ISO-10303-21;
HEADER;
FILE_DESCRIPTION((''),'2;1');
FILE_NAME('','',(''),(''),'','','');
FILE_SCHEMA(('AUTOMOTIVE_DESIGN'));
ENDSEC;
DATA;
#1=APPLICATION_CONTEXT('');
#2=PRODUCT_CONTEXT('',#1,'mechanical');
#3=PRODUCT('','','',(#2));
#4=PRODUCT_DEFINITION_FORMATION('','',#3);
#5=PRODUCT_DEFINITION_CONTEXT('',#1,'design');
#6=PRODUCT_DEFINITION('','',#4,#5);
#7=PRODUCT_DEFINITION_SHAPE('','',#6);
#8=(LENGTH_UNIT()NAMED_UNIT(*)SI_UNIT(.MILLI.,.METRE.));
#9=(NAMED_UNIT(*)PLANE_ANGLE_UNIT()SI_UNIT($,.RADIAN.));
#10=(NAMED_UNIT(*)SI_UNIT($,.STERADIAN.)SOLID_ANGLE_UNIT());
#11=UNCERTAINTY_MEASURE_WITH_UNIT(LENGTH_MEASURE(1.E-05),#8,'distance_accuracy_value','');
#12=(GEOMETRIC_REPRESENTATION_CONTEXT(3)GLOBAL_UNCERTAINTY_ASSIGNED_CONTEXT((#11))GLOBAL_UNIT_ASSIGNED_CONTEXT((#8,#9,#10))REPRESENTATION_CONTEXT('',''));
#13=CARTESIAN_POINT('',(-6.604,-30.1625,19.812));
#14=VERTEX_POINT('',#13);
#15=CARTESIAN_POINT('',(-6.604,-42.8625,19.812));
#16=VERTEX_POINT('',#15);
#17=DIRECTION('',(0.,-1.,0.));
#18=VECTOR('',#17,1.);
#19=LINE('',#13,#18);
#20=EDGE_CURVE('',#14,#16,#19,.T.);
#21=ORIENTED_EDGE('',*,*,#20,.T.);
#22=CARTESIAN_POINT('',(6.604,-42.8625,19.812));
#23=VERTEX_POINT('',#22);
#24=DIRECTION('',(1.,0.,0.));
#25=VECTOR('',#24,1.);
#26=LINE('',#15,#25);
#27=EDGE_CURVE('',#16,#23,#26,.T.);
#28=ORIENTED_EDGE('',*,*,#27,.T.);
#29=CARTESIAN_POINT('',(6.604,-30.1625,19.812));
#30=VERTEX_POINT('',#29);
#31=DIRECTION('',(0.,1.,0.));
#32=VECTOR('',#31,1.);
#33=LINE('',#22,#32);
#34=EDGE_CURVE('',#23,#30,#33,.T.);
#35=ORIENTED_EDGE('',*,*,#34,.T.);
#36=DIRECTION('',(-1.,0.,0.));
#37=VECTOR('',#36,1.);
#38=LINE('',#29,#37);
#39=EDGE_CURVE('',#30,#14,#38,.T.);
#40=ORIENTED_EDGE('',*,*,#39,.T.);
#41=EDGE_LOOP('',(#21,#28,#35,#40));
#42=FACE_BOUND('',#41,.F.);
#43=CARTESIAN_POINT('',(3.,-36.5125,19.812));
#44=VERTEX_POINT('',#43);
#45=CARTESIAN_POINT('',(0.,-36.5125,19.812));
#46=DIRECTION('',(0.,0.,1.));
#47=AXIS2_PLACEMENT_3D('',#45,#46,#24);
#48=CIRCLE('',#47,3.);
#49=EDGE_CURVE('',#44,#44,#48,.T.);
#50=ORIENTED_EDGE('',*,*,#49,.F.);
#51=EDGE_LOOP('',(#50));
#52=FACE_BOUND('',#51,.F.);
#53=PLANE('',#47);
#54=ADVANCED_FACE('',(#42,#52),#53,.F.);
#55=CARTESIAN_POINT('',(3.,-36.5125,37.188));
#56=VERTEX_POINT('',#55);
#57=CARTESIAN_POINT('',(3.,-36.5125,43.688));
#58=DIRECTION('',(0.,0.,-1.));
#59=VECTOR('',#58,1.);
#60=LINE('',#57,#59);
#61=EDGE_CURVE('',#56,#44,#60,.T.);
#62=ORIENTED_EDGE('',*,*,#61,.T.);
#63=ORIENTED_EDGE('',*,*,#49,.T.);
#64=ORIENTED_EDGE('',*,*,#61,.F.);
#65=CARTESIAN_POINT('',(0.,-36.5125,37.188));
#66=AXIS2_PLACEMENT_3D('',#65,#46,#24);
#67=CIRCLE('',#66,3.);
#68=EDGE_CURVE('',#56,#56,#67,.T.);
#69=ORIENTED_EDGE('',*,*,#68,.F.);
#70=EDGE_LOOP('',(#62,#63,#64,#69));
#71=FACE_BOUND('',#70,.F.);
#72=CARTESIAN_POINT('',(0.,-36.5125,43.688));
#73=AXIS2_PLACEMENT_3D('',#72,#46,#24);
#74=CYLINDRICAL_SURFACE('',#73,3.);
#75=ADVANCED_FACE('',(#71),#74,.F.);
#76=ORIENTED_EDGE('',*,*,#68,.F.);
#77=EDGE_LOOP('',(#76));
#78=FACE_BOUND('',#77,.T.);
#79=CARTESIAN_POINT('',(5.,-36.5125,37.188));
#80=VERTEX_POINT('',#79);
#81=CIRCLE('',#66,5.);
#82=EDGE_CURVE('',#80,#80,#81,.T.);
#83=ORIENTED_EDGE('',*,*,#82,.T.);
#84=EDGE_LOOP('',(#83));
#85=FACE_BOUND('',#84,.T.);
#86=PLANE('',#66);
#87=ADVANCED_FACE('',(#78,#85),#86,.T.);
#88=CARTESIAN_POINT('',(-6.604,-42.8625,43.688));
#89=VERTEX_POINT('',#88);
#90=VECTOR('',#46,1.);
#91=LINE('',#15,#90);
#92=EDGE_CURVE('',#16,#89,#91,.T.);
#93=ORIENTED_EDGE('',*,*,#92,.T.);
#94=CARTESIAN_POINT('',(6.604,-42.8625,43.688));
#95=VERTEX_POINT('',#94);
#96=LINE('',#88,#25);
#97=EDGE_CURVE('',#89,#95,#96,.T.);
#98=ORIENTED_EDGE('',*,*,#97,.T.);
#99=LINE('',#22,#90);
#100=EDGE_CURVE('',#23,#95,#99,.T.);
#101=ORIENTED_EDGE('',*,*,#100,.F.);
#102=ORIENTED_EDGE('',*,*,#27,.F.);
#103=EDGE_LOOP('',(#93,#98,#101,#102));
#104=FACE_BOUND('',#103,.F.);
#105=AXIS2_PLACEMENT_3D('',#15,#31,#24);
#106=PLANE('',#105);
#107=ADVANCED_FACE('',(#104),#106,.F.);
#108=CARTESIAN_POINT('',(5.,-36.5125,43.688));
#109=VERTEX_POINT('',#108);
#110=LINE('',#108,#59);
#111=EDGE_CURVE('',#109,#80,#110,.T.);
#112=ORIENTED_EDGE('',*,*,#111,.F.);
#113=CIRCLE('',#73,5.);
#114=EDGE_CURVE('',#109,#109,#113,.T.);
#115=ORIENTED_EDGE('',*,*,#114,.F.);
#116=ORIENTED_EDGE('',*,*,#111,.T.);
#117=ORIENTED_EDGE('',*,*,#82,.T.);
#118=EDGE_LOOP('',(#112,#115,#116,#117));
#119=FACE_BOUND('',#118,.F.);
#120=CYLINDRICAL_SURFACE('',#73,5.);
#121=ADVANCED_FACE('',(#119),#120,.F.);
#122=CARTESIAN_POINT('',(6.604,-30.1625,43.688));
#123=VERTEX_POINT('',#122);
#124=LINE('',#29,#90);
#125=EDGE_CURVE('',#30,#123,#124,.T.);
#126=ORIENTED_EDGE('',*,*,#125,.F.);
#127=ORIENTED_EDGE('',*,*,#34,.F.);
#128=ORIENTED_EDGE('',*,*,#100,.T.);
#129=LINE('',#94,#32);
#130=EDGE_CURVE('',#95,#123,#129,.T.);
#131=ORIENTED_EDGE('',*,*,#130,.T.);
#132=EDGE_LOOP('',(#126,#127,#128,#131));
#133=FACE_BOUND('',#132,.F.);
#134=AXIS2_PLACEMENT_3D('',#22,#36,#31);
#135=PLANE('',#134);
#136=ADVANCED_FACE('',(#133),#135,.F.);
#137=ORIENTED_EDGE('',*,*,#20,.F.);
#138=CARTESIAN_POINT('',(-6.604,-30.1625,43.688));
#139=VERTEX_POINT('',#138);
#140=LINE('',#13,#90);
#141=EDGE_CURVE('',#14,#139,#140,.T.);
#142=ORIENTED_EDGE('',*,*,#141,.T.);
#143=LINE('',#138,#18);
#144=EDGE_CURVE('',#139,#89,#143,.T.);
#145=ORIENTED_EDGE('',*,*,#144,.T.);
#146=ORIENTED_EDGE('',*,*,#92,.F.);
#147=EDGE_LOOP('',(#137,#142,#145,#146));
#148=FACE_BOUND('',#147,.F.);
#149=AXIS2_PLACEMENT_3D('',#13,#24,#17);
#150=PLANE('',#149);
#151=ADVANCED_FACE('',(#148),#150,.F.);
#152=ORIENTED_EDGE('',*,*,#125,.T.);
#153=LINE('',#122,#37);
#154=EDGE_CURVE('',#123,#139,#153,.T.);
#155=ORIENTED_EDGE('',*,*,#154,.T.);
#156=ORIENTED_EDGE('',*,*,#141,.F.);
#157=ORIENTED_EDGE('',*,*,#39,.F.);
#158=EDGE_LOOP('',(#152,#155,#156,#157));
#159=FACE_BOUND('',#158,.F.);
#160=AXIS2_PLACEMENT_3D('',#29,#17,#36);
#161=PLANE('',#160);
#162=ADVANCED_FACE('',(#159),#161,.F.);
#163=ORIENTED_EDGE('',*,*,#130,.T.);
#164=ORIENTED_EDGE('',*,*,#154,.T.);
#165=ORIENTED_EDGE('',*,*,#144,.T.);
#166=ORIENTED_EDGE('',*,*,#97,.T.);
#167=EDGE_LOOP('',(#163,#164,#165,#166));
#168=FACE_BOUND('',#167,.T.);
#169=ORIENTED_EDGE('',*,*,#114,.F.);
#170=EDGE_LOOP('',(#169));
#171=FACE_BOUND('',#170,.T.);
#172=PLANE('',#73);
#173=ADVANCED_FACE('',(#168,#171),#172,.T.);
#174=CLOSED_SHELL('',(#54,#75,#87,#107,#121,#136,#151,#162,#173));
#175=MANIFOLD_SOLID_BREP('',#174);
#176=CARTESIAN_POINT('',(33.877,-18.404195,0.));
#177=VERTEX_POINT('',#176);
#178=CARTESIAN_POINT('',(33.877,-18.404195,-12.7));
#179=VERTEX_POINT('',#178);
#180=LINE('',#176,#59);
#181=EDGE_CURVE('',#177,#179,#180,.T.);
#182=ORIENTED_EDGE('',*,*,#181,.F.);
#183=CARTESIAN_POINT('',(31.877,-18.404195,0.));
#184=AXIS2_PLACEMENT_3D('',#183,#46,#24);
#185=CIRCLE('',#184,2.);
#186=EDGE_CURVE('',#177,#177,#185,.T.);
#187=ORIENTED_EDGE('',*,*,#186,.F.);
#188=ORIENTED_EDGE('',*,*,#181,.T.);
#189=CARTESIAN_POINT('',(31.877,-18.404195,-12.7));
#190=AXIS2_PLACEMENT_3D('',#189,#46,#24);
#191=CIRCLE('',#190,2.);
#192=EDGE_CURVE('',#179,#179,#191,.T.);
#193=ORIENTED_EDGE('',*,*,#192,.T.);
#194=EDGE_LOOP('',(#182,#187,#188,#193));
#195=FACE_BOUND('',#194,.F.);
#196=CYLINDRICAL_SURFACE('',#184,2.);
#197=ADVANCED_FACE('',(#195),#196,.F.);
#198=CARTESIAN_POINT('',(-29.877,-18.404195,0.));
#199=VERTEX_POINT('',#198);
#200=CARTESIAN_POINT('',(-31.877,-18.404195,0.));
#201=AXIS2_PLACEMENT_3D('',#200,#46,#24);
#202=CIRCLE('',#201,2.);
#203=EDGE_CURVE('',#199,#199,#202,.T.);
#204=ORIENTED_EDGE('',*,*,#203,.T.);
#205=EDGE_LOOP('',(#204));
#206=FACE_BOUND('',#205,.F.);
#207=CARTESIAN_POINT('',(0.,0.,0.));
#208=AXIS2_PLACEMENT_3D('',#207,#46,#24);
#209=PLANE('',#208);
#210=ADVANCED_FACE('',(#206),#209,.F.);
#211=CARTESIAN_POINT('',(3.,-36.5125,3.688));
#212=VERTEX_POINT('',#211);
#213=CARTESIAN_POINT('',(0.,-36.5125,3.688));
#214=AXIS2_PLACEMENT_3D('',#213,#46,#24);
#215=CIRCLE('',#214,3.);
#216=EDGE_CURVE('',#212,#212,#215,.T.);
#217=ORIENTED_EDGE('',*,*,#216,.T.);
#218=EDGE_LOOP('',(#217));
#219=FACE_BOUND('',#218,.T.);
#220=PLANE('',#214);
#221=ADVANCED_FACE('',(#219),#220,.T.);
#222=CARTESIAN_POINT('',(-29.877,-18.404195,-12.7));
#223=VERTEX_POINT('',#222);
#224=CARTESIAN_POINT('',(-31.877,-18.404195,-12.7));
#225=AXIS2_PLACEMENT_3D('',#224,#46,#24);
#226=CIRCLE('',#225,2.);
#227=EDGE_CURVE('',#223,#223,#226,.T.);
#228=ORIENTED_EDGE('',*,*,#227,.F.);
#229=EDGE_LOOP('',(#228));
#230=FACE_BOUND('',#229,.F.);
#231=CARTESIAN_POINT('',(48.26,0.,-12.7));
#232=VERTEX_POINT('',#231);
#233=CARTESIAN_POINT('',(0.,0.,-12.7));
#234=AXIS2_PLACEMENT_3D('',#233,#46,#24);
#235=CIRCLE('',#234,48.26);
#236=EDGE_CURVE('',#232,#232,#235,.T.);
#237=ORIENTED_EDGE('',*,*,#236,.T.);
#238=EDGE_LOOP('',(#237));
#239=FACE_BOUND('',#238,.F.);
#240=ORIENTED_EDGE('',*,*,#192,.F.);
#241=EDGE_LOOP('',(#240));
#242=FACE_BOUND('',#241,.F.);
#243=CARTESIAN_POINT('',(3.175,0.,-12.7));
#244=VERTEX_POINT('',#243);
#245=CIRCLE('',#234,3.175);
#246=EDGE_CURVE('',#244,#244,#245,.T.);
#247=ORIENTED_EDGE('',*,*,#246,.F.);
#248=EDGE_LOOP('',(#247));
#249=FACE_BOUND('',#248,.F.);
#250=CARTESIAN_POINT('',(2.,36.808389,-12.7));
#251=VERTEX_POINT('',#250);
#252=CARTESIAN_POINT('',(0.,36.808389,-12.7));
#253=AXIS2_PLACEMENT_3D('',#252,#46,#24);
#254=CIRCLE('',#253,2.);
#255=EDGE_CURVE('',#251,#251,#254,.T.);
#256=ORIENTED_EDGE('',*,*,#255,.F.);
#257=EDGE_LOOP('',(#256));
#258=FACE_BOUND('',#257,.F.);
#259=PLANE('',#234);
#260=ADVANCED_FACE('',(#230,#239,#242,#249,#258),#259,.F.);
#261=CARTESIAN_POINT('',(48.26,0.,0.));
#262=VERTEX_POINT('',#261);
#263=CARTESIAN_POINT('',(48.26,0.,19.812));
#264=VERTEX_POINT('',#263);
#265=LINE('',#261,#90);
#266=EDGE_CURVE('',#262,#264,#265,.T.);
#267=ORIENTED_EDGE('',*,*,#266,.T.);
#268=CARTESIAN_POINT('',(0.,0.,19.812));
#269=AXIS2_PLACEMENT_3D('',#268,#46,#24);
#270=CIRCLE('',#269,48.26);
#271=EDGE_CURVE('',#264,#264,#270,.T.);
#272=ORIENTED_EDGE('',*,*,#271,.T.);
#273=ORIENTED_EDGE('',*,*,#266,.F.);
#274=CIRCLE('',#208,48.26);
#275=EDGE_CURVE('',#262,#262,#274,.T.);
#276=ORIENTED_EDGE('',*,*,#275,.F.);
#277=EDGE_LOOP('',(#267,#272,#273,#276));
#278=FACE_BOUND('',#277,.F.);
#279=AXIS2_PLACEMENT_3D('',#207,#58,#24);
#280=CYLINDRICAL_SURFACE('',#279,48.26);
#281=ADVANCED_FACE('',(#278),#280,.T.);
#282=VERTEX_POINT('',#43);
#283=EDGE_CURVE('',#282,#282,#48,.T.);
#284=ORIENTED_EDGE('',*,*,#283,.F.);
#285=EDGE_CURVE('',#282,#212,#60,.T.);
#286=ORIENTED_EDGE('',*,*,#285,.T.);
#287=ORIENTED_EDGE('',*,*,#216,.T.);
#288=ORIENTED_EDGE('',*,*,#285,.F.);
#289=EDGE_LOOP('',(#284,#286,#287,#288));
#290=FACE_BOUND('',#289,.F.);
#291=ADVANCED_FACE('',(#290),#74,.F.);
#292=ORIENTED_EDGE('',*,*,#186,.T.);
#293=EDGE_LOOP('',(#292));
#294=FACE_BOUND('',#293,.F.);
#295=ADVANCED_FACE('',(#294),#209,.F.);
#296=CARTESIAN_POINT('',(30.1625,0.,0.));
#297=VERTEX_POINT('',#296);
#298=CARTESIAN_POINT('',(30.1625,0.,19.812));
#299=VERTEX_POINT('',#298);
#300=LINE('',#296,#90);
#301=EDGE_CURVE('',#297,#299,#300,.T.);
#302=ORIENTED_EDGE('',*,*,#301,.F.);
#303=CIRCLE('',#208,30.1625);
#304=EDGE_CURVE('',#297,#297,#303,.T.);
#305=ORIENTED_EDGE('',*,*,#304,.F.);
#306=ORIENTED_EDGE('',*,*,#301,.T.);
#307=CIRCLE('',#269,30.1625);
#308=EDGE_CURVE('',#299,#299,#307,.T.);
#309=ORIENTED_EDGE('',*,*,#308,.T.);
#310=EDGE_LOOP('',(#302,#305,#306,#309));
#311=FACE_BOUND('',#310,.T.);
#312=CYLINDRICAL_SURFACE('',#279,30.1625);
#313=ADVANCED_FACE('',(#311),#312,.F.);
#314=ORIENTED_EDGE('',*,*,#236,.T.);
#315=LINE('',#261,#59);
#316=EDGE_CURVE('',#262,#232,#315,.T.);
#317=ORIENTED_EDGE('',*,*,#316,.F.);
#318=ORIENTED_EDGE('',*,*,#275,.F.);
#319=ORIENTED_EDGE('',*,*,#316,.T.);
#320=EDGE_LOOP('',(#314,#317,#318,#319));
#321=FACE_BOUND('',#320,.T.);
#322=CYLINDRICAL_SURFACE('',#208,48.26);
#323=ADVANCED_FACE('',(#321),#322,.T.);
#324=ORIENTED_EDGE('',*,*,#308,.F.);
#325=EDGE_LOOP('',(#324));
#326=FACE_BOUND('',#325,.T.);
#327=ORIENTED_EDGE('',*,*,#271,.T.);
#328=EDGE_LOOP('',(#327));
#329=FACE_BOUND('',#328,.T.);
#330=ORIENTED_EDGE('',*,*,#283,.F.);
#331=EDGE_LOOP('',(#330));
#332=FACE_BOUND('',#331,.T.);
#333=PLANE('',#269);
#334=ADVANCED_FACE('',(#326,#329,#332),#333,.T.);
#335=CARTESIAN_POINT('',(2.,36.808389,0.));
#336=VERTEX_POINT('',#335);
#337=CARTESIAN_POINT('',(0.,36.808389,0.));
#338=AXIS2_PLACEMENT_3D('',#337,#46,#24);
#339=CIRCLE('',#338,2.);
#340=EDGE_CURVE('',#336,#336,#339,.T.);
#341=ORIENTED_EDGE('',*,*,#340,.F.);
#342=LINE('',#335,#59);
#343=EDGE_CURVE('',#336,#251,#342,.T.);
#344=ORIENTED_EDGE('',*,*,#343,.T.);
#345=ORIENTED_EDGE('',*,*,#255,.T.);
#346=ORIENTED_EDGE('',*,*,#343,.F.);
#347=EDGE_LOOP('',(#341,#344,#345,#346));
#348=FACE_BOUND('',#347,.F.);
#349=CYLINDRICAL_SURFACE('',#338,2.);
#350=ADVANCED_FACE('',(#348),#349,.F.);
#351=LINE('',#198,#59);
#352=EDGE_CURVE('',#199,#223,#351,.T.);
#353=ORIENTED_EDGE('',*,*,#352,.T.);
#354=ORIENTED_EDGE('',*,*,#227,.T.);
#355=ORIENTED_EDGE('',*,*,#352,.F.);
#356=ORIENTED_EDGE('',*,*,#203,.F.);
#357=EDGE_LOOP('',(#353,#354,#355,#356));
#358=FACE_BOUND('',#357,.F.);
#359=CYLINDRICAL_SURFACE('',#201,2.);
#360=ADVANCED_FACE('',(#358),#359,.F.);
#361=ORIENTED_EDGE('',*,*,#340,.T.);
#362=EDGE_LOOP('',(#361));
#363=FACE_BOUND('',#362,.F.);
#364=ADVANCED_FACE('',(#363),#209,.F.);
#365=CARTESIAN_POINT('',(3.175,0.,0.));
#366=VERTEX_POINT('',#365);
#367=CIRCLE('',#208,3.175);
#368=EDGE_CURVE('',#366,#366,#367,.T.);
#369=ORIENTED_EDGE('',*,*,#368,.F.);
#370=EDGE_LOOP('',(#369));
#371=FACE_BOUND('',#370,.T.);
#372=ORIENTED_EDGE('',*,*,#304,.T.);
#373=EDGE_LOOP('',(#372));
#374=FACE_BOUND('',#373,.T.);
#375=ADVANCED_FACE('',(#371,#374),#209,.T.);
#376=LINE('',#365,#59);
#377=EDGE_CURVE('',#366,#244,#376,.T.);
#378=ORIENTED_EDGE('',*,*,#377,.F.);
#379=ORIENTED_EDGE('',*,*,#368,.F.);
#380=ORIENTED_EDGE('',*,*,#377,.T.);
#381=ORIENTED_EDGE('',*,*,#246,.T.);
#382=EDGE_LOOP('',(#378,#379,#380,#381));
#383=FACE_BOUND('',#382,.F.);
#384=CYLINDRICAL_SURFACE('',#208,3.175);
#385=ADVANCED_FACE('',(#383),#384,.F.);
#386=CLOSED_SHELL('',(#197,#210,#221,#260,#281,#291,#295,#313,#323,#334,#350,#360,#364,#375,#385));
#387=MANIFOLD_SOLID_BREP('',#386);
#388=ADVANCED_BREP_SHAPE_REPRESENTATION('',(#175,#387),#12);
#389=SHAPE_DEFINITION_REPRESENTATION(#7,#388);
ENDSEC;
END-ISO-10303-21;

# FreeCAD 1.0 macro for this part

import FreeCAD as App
import Part
import Sketcher

V = App.Vector
Q = App.Units.Quantity

doc = App.newDocument("Part")
body = doc.addObject("PartDesign::Body", "Body")

sketch1 = body.newObject("Sketcher::SketchObject", "Sketch")
sketch1.AttachmentSupport = (doc.getObject("XY_Plane"), [""])
sketch1.MapMode = "FlatFace"
sketch1.addGeometry(Part.Circle(V(0, 0, 0), V(0, 0, 1), 48.3), False)
sketch1.addGeometry(Part.Circle(V(-31.9, -18.4, 0), V(0, 0, 1), 2), False)
sketch1.addGeometry(Part.Circle(V(31.9, -18.4, 0), V(0, 0, 1), 2), False)
sketch1.addGeometry(Part.Circle(V(0, 0, 0), V(0, 0, 1), 3.2), False)
sketch1.addGeometry(Part.Circle(V(0, 36.8, 0), V(0, 0, 1), 2), False)
sketch1.addConstraint(Sketcher.Constraint("Coincident", 0, 3, -1, 1))
sketch1.addConstraint(Sketcher.Constraint("Coincident", 3, 3, -1, 1))
sketch1.addConstraint(Sketcher.Constraint("Equal", 1, 2))
sketch1.addConstraint(Sketcher.Constraint("Equal", 2, 4))
sketch1.addConstraint(Sketcher.Constraint("Symmetric", 1, 3, 2, 3, -2))
sketch1.addConstraint(Sketcher.Constraint("PointOnObject", 4, 3, -2))
sketch1.addConstraint(Sketcher.Constraint("Diameter", 0, Q("3.8 in")))
sketch1.addConstraint(Sketcher.Constraint("Diameter", 3, Q("0.25 in")))
sketch1.addConstraint(Sketcher.Constraint("Diameter", 1, 4.0))
sketch1.addConstraint(Sketcher.Constraint("DistanceX", 1, 3, 2, 3, Q("2.51 in")))
sketch1.addConstraint(Sketcher.Constraint("DistanceY", -1, 1, 4, 3, 36.808389))
sketch1.addConstraint(Sketcher.Constraint("DistanceY", 1, 3, -1, 1, 18.404195))
pad1 = body.newObject("PartDesign::Pad", "Pad")
pad1.Profile = sketch1
pad1.Length = Q("0.5 in")
pad1.Reversed = True

sketch2 = body.newObject("Sketcher::SketchObject", "Sketch001")
sketch2.AttachmentSupport = (doc.getObject("XY_Plane"), [""])
sketch2.MapMode = "FlatFace"
sketch2.addGeometry(Part.Circle(V(0, 0, 0), V(0, 0, 1), 48), False)
sketch2.addGeometry(Part.Circle(V(0, 0, 0), V(0, 0, 1), 30), False)
sketch2.addConstraint(Sketcher.Constraint("Coincident", 0, 3, -1, 1))
sketch2.addConstraint(Sketcher.Constraint("Coincident", 1, 3, -1, 1))
sketch2.addConstraint(Sketcher.Constraint("Diameter", 0, Q("3.8 in")))
sketch2.addConstraint(Sketcher.Constraint("Diameter", 1, Q("2.375 in")))
pad2 = body.newObject("PartDesign::Pad", "Pad001")
pad2.Profile = sketch2
pad2.Length = Q("0.78 in")
body2 = doc.addObject("PartDesign::Body", "Body001")

sketch3 = body2.newObject("Sketcher::SketchObject", "Sketch002")
sketch3.AttachmentSupport = (doc.getObject("XY_Plane001"), [""])
sketch3.MapMode = "FlatFace"
sketch3.AttachmentOffset = App.Placement(V(0, 0, 0.78 * 25.4), App.Rotation())
sketch3.addGeometry(Part.LineSegment(V(-7, -30, 0), V(-7, -43, 0)), False)
sketch3.addGeometry(Part.LineSegment(V(-7, -43, 0), V(7, -43, 0)), False)
sketch3.addGeometry(Part.LineSegment(V(7, -43, 0), V(7, -30, 0)), False)
sketch3.addGeometry(Part.LineSegment(V(7, -30, 0), V(-7, -30, 0)), False)
sketch3.addConstraint(Sketcher.Constraint("Coincident", 0, 2, 1, 1))
sketch3.addConstraint(Sketcher.Constraint("Coincident", 1, 2, 2, 1))
sketch3.addConstraint(Sketcher.Constraint("Coincident", 2, 2, 3, 1))
sketch3.addConstraint(Sketcher.Constraint("Coincident", 3, 2, 0, 1))
sketch3.addConstraint(Sketcher.Constraint("Vertical", 0))
sketch3.addConstraint(Sketcher.Constraint("Horizontal", 1))
sketch3.addConstraint(Sketcher.Constraint("Vertical", 2))
sketch3.addConstraint(Sketcher.Constraint("Horizontal", 3))
sketch3.addConstraint(Sketcher.Constraint("DistanceY", 0, 2, 0, 1, Q("0.5 in")))
sketch3.addConstraint(Sketcher.Constraint("DistanceX", 1, 1, 1, 2, Q("0.52 in")))
sketch3.addConstraint(Sketcher.Constraint("DistanceX", 0, 2, -1, 1, Q("0.26 in")))
sketch3.addConstraint(Sketcher.Constraint("DistanceY", 0, 2, -1, 1, Q("1.6875 in")))
pad3 = body2.newObject("PartDesign::Pad", "Pad002")
pad3.Profile = sketch3
pad3.Length = Q("0.94 in")

sketch4 = body2.newObject("Sketcher::SketchObject", "Sketch003")
sketch4.AttachmentSupport = (doc.getObject("XY_Plane001"), [""])
sketch4.MapMode = "FlatFace"
sketch4.AttachmentOffset = App.Placement(V(0, 0, 1.72 * 25.4), App.Rotation())
sketch4.addGeometry(Part.Circle(V(0, -37, 0), V(0, 0, 1), 5), False)
sketch4.addConstraint(Sketcher.Constraint("PointOnObject", 0, 3, -2))
sketch4.addConstraint(Sketcher.Constraint("Diameter", 0, 10.0))
sketch4.addConstraint(Sketcher.Constraint("DistanceY", 0, 3, -1, 1, Q("1.4375 in")))
pocket1 = body2.newObject("PartDesign::Pocket", "Pocket")
pocket1.Profile = sketch4
pocket1.Length = 6.5
body3 = doc.addObject("PartDesign::Body", "Body002")

sketch5 = body3.newObject("Sketcher::SketchObject", "Sketch004")
sketch5.AttachmentSupport = (doc.getObject("XY_Plane002"), [""])
sketch5.MapMode = "FlatFace"
sketch5.AttachmentOffset = App.Placement(V(0, 0, 1.72 * 25.4), App.Rotation())
sketch5.addGeometry(Part.Circle(V(0, -36.5, 0), V(0, 0, 1), 3), False)
sketch5.addConstraint(Sketcher.Constraint("PointOnObject", 0, 3, -2))
sketch5.addConstraint(Sketcher.Constraint("Diameter", 0, 6.0))
sketch5.addConstraint(Sketcher.Constraint("DistanceY", 0, 3, -1, 1, Q("1.4375 in")))
pad4 = body3.newObject("PartDesign::Pad", "Pad003")
pad4.Profile = sketch5
pad4.Length = 40
pad4.Reversed = True
doc.recompute()

body4 = doc.addObject("PartDesign::Body", "Body003")
body4.BaseFeature = body3
boolean = body.newObject("PartDesign::Boolean", "Boolean")
boolean.Type = "Cut"
boolean.addObjects([body4])
doc.recompute()

boolean2 = body2.newObject("PartDesign::Boolean", "Boolean001")
boolean2.Type = "Cut"
boolean2.addObjects([body3])

doc.recompute()
